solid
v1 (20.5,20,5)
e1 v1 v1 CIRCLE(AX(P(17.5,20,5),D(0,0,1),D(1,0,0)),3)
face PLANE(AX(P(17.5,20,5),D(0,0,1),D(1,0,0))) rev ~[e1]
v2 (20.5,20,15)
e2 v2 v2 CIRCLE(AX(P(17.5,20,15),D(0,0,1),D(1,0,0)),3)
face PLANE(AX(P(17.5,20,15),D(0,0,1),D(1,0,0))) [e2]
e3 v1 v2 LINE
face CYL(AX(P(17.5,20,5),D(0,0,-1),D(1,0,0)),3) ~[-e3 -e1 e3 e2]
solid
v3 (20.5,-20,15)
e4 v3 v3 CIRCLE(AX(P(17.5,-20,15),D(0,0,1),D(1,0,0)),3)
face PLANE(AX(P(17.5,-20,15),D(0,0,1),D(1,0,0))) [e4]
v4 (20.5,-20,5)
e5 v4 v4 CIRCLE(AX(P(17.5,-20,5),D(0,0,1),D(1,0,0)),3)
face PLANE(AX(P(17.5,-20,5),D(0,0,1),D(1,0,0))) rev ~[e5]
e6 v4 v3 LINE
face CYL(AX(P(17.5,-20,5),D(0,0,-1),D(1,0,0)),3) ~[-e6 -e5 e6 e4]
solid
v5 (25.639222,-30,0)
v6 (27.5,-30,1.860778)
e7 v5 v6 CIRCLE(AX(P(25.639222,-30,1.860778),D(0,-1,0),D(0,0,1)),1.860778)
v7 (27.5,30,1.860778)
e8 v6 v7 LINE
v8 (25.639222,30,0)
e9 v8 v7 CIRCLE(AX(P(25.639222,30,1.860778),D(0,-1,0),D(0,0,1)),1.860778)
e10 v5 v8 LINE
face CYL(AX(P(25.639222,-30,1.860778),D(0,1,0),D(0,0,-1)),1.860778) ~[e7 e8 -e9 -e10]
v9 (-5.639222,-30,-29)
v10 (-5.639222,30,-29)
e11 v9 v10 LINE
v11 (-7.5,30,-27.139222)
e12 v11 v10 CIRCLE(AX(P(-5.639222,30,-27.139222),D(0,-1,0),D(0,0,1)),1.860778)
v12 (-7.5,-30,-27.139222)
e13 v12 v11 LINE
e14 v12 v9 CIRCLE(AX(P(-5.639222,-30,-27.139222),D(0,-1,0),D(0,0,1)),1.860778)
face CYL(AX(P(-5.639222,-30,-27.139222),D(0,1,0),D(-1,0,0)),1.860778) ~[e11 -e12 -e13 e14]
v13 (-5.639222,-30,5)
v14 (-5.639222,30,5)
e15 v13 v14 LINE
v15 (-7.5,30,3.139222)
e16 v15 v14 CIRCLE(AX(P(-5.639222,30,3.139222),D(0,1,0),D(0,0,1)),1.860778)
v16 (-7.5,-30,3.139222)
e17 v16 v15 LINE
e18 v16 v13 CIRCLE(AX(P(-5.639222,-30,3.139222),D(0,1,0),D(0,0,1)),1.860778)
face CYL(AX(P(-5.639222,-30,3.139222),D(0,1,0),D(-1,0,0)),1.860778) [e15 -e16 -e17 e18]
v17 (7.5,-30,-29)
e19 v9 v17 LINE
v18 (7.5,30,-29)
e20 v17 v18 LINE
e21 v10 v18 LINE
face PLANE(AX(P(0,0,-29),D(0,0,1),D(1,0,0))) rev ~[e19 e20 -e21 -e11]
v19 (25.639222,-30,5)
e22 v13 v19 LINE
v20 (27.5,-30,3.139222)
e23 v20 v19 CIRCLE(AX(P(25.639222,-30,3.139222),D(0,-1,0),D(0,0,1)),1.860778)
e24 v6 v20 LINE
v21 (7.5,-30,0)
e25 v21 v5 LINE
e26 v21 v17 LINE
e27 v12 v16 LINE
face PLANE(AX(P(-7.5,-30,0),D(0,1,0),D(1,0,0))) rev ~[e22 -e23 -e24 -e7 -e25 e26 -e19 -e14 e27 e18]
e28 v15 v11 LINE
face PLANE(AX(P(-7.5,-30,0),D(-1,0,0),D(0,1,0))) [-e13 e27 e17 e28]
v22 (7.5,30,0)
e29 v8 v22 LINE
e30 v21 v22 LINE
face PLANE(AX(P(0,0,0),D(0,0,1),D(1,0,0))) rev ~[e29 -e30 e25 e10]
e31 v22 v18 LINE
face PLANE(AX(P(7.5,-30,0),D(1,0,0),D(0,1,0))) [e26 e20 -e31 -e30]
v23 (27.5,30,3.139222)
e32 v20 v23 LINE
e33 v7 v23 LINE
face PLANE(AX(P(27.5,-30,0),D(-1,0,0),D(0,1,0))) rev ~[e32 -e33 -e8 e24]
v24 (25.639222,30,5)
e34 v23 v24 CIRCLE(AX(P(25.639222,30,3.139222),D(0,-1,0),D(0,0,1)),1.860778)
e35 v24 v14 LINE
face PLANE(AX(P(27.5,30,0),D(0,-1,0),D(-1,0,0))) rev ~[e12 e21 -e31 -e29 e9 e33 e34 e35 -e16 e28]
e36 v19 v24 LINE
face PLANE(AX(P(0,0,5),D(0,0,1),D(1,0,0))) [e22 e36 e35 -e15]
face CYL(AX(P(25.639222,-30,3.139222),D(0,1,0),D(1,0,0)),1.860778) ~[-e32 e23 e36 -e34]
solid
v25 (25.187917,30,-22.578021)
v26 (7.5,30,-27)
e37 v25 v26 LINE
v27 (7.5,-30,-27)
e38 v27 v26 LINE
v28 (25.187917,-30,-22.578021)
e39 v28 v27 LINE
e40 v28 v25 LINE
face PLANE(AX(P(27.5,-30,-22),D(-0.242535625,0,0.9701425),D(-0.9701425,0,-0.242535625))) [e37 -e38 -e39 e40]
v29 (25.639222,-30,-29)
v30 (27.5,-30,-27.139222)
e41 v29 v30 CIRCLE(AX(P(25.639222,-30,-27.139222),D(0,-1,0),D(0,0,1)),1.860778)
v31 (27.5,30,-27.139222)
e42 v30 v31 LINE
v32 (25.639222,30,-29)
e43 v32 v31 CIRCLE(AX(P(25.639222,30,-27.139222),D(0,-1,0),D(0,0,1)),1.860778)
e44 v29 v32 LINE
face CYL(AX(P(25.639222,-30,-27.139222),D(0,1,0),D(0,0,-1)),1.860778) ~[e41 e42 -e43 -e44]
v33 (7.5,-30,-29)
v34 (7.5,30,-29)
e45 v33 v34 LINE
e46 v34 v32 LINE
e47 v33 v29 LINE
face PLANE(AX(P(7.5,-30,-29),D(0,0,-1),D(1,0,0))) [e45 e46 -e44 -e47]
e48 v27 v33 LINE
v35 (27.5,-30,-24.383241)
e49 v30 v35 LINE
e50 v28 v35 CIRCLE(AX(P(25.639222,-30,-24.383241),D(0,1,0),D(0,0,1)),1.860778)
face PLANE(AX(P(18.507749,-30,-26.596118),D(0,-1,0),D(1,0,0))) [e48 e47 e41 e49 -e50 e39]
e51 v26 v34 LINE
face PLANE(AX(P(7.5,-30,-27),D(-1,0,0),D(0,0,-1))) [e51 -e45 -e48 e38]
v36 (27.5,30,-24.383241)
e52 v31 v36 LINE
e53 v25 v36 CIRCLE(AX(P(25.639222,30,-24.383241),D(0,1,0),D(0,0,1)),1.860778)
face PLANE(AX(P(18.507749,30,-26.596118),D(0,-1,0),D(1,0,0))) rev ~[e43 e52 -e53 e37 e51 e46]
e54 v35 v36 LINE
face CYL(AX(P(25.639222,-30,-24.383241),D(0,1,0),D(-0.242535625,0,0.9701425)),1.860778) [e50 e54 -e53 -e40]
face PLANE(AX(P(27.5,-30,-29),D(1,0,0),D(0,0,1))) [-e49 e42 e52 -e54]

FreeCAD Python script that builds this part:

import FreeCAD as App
import Part
import Sketcher

V = App.Vector
Q = App.Units.Quantity


def edges_at(feature, points):
    """Names of the edges that pass closest to the given points."""
    edges = feature.Shape.Edges
    near = lambda p: min(range(len(edges)), key=lambda i: edges[i].distToShape(Part.Vertex(*p))[0])
    return sorted({f"Edge{near(p) + 1}" for p in points})

doc = App.newDocument("Part")
body = doc.addObject("PartDesign::Body", "Body")

# Sketch on XY plane
sketch1 = body.newObject("Sketcher::SketchObject", "Sketch")
sketch1.AttachmentSupport = (doc.getObject("XY_Plane"), [""])
sketch1.MapMode = "FlatFace"
sketch1.addGeometry([
    Part.LineSegment(V(-8, 30, 0), V(-8, -30, 0)),
    Part.LineSegment(V(-8, -30, 0), V(8, -30, 0)),
    Part.LineSegment(V(8, -30, 0), V(8, 30, 0)),
    Part.LineSegment(V(8, 30, 0), V(-8, 30, 0)),
], False)
sketch1.addConstraint([
    Sketcher.Constraint("Coincident", 0, 2, 1, 1),
    Sketcher.Constraint("Coincident", 1, 2, 2, 1),
    Sketcher.Constraint("Coincident", 2, 2, 3, 1),
    Sketcher.Constraint("Coincident", 3, 2, 0, 1),
    Sketcher.Constraint("Vertical", 0),
    Sketcher.Constraint("Horizontal", 1),
    Sketcher.Constraint("Vertical", 2),
    Sketcher.Constraint("Horizontal", 3),
    Sketcher.Constraint("Symmetric", 0, 2, 2, 2, -1, 1),
    Sketcher.Constraint("DistanceX", 1, 1, 1, 2, Q("15 mm")),
    Sketcher.Constraint("DistanceY", 0, 2, 0, 1, Q("60 mm")),
])
pad1 = body.newObject("PartDesign::Pad", "Pad")
pad1.Profile = sketch1
pad1.Length = 29
pad1.Reversed = True

# Sketch on XY plane
sketch2 = body.newObject("Sketcher::SketchObject", "Sketch001")
sketch2.AttachmentSupport = (doc.getObject("XY_Plane"), [""])
sketch2.MapMode = "FlatFace"
sketch2.addGeometry([
    Part.LineSegment(V(-8, 30, 0), V(-8, -30, 0)),
    Part.LineSegment(V(-8, -30, 0), V(28, -30, 0)),
    Part.LineSegment(V(28, -30, 0), V(28, 30, 0)),
    Part.LineSegment(V(28, 30, 0), V(-8, 30, 0)),
], False)
sketch2.addConstraint([
    Sketcher.Constraint("Coincident", 0, 2, 1, 1),
    Sketcher.Constraint("Coincident", 1, 2, 2, 1),
    Sketcher.Constraint("Coincident", 2, 2, 3, 1),
    Sketcher.Constraint("Coincident", 3, 2, 0, 1),
    Sketcher.Constraint("Vertical", 0),
    Sketcher.Constraint("Horizontal", 1),
    Sketcher.Constraint("Vertical", 2),
    Sketcher.Constraint("Horizontal", 3),
    Sketcher.Constraint("DistanceX", 1, 1, 1, 2, Q("35 mm")),
    Sketcher.Constraint("DistanceY", 0, 2, 0, 1, Q("60 mm")),
    Sketcher.Constraint("DistanceY", 0, 2, -1, 1, Q("30 mm")),
    Sketcher.Constraint("DistanceX", 0, 2, -1, 1, Q("7.5 mm")),
])
pad2 = body.newObject("PartDesign::Pad", "Pad001")
pad2.Profile = sketch2
pad2.Length = 5
doc.recompute()

fillet = body.newObject("PartDesign::Fillet", "Fillet")
fillet.Base = (pad2, edges_at(pad2, [
    (27.5, 0, 5),
    (27.5, 0, 0),
    (-7.5, 0, 5),
    (-7.5, 0, -29),
]))
fillet.Radius = 1.860778
body2 = doc.addObject("PartDesign::Body", "Body001")
body2.AllowCompound = True

# Sketch on XY plane
sketch3 = body2.newObject("Sketcher::SketchObject", "Sketch002")
sketch3.AttachmentSupport = (doc.getObject("XY_Plane001"), [""])
sketch3.MapMode = "FlatFace"
sketch3.AttachmentOffset = App.Placement(V(0, 0, 5), App.Rotation())
sketch3.addGeometry([
    Part.Circle(V(17.5, -20, 0), V(0, 0, 1), 3),
    Part.Circle(V(17.5, 20, 0), V(0, 0, 1), 3),
], False)
sketch3.addConstraint([
    Sketcher.Constraint("Equal", 0, 1),
    Sketcher.Constraint("Symmetric", 0, 3, 1, 3, -1),
    Sketcher.Constraint("Diameter", 0, Q("6 mm")),
    Sketcher.Constraint("DistanceY", 0, 3, -1, 1, Q("20 mm")),
    Sketcher.Constraint("DistanceX", -1, 1, 0, 3, Q("17.5 mm")),
])
pad3 = body2.newObject("PartDesign::Pad", "Pad002")
pad3.Profile = sketch3
pad3.Length = 10
body3 = doc.addObject("PartDesign::Body", "Body002")

# Sketch on XZ plane
sketch4 = body3.newObject("Sketcher::SketchObject", "Sketch003")
sketch4.AttachmentSupport = (doc.getObject("XZ_Plane002"), [""])
sketch4.MapMode = "FlatFace"
sketch4.AttachmentOffset = App.Placement(V(0, 0, 30), App.Rotation())
sketch4.addGeometry([
    Part.LineSegment(V(27.5, -22, 0), V(7.5, -27, 0)),
    Part.LineSegment(V(7.5, -27, 0), V(7.5, -29, 0)),
    Part.LineSegment(V(7.5, -29, 0), V(27.5, -29, 0)),
    Part.LineSegment(V(27.5, -29, 0), V(27.5, -22, 0)),
], False)
sketch4.addConstraint([
    Sketcher.Constraint("Coincident", 0, 2, 1, 1),
    Sketcher.Constraint("Coincident", 1, 2, 2, 1),
    Sketcher.Constraint("Coincident", 2, 2, 3, 1),
    Sketcher.Constraint("Coincident", 3, 2, 0, 1),
    Sketcher.Constraint("Vertical", 1),
    Sketcher.Constraint("Horizontal", 2),
    Sketcher.Constraint("Vertical", 3),
    Sketcher.Constraint("DistanceX", 2, 1, 2, 2, Q("20 mm")),
    Sketcher.Constraint("DistanceY", 1, 2, 1, 1, Q("2 mm")),
    Sketcher.Constraint("DistanceY", 3, 1, 3, 2, Q("7 mm")),
    Sketcher.Constraint("DistanceY", 0, 2, -1, 1, Q("27 mm")),
    Sketcher.Constraint("DistanceX", -1, 1, 0, 2, Q("7.5 mm")),
])
pad4 = body3.newObject("PartDesign::Pad", "Pad003")
pad4.Profile = sketch4
pad4.Length = 60
pad4.Reversed = True
doc.recompute()

fillet2 = body3.newObject("PartDesign::Fillet", "Fillet001")
fillet2.Base = (pad4, edges_at(pad4, [(27.5, 0, -22), (27.5, 0, -29)]))
fillet2.Radius = 1.860778

doc.recompute()
